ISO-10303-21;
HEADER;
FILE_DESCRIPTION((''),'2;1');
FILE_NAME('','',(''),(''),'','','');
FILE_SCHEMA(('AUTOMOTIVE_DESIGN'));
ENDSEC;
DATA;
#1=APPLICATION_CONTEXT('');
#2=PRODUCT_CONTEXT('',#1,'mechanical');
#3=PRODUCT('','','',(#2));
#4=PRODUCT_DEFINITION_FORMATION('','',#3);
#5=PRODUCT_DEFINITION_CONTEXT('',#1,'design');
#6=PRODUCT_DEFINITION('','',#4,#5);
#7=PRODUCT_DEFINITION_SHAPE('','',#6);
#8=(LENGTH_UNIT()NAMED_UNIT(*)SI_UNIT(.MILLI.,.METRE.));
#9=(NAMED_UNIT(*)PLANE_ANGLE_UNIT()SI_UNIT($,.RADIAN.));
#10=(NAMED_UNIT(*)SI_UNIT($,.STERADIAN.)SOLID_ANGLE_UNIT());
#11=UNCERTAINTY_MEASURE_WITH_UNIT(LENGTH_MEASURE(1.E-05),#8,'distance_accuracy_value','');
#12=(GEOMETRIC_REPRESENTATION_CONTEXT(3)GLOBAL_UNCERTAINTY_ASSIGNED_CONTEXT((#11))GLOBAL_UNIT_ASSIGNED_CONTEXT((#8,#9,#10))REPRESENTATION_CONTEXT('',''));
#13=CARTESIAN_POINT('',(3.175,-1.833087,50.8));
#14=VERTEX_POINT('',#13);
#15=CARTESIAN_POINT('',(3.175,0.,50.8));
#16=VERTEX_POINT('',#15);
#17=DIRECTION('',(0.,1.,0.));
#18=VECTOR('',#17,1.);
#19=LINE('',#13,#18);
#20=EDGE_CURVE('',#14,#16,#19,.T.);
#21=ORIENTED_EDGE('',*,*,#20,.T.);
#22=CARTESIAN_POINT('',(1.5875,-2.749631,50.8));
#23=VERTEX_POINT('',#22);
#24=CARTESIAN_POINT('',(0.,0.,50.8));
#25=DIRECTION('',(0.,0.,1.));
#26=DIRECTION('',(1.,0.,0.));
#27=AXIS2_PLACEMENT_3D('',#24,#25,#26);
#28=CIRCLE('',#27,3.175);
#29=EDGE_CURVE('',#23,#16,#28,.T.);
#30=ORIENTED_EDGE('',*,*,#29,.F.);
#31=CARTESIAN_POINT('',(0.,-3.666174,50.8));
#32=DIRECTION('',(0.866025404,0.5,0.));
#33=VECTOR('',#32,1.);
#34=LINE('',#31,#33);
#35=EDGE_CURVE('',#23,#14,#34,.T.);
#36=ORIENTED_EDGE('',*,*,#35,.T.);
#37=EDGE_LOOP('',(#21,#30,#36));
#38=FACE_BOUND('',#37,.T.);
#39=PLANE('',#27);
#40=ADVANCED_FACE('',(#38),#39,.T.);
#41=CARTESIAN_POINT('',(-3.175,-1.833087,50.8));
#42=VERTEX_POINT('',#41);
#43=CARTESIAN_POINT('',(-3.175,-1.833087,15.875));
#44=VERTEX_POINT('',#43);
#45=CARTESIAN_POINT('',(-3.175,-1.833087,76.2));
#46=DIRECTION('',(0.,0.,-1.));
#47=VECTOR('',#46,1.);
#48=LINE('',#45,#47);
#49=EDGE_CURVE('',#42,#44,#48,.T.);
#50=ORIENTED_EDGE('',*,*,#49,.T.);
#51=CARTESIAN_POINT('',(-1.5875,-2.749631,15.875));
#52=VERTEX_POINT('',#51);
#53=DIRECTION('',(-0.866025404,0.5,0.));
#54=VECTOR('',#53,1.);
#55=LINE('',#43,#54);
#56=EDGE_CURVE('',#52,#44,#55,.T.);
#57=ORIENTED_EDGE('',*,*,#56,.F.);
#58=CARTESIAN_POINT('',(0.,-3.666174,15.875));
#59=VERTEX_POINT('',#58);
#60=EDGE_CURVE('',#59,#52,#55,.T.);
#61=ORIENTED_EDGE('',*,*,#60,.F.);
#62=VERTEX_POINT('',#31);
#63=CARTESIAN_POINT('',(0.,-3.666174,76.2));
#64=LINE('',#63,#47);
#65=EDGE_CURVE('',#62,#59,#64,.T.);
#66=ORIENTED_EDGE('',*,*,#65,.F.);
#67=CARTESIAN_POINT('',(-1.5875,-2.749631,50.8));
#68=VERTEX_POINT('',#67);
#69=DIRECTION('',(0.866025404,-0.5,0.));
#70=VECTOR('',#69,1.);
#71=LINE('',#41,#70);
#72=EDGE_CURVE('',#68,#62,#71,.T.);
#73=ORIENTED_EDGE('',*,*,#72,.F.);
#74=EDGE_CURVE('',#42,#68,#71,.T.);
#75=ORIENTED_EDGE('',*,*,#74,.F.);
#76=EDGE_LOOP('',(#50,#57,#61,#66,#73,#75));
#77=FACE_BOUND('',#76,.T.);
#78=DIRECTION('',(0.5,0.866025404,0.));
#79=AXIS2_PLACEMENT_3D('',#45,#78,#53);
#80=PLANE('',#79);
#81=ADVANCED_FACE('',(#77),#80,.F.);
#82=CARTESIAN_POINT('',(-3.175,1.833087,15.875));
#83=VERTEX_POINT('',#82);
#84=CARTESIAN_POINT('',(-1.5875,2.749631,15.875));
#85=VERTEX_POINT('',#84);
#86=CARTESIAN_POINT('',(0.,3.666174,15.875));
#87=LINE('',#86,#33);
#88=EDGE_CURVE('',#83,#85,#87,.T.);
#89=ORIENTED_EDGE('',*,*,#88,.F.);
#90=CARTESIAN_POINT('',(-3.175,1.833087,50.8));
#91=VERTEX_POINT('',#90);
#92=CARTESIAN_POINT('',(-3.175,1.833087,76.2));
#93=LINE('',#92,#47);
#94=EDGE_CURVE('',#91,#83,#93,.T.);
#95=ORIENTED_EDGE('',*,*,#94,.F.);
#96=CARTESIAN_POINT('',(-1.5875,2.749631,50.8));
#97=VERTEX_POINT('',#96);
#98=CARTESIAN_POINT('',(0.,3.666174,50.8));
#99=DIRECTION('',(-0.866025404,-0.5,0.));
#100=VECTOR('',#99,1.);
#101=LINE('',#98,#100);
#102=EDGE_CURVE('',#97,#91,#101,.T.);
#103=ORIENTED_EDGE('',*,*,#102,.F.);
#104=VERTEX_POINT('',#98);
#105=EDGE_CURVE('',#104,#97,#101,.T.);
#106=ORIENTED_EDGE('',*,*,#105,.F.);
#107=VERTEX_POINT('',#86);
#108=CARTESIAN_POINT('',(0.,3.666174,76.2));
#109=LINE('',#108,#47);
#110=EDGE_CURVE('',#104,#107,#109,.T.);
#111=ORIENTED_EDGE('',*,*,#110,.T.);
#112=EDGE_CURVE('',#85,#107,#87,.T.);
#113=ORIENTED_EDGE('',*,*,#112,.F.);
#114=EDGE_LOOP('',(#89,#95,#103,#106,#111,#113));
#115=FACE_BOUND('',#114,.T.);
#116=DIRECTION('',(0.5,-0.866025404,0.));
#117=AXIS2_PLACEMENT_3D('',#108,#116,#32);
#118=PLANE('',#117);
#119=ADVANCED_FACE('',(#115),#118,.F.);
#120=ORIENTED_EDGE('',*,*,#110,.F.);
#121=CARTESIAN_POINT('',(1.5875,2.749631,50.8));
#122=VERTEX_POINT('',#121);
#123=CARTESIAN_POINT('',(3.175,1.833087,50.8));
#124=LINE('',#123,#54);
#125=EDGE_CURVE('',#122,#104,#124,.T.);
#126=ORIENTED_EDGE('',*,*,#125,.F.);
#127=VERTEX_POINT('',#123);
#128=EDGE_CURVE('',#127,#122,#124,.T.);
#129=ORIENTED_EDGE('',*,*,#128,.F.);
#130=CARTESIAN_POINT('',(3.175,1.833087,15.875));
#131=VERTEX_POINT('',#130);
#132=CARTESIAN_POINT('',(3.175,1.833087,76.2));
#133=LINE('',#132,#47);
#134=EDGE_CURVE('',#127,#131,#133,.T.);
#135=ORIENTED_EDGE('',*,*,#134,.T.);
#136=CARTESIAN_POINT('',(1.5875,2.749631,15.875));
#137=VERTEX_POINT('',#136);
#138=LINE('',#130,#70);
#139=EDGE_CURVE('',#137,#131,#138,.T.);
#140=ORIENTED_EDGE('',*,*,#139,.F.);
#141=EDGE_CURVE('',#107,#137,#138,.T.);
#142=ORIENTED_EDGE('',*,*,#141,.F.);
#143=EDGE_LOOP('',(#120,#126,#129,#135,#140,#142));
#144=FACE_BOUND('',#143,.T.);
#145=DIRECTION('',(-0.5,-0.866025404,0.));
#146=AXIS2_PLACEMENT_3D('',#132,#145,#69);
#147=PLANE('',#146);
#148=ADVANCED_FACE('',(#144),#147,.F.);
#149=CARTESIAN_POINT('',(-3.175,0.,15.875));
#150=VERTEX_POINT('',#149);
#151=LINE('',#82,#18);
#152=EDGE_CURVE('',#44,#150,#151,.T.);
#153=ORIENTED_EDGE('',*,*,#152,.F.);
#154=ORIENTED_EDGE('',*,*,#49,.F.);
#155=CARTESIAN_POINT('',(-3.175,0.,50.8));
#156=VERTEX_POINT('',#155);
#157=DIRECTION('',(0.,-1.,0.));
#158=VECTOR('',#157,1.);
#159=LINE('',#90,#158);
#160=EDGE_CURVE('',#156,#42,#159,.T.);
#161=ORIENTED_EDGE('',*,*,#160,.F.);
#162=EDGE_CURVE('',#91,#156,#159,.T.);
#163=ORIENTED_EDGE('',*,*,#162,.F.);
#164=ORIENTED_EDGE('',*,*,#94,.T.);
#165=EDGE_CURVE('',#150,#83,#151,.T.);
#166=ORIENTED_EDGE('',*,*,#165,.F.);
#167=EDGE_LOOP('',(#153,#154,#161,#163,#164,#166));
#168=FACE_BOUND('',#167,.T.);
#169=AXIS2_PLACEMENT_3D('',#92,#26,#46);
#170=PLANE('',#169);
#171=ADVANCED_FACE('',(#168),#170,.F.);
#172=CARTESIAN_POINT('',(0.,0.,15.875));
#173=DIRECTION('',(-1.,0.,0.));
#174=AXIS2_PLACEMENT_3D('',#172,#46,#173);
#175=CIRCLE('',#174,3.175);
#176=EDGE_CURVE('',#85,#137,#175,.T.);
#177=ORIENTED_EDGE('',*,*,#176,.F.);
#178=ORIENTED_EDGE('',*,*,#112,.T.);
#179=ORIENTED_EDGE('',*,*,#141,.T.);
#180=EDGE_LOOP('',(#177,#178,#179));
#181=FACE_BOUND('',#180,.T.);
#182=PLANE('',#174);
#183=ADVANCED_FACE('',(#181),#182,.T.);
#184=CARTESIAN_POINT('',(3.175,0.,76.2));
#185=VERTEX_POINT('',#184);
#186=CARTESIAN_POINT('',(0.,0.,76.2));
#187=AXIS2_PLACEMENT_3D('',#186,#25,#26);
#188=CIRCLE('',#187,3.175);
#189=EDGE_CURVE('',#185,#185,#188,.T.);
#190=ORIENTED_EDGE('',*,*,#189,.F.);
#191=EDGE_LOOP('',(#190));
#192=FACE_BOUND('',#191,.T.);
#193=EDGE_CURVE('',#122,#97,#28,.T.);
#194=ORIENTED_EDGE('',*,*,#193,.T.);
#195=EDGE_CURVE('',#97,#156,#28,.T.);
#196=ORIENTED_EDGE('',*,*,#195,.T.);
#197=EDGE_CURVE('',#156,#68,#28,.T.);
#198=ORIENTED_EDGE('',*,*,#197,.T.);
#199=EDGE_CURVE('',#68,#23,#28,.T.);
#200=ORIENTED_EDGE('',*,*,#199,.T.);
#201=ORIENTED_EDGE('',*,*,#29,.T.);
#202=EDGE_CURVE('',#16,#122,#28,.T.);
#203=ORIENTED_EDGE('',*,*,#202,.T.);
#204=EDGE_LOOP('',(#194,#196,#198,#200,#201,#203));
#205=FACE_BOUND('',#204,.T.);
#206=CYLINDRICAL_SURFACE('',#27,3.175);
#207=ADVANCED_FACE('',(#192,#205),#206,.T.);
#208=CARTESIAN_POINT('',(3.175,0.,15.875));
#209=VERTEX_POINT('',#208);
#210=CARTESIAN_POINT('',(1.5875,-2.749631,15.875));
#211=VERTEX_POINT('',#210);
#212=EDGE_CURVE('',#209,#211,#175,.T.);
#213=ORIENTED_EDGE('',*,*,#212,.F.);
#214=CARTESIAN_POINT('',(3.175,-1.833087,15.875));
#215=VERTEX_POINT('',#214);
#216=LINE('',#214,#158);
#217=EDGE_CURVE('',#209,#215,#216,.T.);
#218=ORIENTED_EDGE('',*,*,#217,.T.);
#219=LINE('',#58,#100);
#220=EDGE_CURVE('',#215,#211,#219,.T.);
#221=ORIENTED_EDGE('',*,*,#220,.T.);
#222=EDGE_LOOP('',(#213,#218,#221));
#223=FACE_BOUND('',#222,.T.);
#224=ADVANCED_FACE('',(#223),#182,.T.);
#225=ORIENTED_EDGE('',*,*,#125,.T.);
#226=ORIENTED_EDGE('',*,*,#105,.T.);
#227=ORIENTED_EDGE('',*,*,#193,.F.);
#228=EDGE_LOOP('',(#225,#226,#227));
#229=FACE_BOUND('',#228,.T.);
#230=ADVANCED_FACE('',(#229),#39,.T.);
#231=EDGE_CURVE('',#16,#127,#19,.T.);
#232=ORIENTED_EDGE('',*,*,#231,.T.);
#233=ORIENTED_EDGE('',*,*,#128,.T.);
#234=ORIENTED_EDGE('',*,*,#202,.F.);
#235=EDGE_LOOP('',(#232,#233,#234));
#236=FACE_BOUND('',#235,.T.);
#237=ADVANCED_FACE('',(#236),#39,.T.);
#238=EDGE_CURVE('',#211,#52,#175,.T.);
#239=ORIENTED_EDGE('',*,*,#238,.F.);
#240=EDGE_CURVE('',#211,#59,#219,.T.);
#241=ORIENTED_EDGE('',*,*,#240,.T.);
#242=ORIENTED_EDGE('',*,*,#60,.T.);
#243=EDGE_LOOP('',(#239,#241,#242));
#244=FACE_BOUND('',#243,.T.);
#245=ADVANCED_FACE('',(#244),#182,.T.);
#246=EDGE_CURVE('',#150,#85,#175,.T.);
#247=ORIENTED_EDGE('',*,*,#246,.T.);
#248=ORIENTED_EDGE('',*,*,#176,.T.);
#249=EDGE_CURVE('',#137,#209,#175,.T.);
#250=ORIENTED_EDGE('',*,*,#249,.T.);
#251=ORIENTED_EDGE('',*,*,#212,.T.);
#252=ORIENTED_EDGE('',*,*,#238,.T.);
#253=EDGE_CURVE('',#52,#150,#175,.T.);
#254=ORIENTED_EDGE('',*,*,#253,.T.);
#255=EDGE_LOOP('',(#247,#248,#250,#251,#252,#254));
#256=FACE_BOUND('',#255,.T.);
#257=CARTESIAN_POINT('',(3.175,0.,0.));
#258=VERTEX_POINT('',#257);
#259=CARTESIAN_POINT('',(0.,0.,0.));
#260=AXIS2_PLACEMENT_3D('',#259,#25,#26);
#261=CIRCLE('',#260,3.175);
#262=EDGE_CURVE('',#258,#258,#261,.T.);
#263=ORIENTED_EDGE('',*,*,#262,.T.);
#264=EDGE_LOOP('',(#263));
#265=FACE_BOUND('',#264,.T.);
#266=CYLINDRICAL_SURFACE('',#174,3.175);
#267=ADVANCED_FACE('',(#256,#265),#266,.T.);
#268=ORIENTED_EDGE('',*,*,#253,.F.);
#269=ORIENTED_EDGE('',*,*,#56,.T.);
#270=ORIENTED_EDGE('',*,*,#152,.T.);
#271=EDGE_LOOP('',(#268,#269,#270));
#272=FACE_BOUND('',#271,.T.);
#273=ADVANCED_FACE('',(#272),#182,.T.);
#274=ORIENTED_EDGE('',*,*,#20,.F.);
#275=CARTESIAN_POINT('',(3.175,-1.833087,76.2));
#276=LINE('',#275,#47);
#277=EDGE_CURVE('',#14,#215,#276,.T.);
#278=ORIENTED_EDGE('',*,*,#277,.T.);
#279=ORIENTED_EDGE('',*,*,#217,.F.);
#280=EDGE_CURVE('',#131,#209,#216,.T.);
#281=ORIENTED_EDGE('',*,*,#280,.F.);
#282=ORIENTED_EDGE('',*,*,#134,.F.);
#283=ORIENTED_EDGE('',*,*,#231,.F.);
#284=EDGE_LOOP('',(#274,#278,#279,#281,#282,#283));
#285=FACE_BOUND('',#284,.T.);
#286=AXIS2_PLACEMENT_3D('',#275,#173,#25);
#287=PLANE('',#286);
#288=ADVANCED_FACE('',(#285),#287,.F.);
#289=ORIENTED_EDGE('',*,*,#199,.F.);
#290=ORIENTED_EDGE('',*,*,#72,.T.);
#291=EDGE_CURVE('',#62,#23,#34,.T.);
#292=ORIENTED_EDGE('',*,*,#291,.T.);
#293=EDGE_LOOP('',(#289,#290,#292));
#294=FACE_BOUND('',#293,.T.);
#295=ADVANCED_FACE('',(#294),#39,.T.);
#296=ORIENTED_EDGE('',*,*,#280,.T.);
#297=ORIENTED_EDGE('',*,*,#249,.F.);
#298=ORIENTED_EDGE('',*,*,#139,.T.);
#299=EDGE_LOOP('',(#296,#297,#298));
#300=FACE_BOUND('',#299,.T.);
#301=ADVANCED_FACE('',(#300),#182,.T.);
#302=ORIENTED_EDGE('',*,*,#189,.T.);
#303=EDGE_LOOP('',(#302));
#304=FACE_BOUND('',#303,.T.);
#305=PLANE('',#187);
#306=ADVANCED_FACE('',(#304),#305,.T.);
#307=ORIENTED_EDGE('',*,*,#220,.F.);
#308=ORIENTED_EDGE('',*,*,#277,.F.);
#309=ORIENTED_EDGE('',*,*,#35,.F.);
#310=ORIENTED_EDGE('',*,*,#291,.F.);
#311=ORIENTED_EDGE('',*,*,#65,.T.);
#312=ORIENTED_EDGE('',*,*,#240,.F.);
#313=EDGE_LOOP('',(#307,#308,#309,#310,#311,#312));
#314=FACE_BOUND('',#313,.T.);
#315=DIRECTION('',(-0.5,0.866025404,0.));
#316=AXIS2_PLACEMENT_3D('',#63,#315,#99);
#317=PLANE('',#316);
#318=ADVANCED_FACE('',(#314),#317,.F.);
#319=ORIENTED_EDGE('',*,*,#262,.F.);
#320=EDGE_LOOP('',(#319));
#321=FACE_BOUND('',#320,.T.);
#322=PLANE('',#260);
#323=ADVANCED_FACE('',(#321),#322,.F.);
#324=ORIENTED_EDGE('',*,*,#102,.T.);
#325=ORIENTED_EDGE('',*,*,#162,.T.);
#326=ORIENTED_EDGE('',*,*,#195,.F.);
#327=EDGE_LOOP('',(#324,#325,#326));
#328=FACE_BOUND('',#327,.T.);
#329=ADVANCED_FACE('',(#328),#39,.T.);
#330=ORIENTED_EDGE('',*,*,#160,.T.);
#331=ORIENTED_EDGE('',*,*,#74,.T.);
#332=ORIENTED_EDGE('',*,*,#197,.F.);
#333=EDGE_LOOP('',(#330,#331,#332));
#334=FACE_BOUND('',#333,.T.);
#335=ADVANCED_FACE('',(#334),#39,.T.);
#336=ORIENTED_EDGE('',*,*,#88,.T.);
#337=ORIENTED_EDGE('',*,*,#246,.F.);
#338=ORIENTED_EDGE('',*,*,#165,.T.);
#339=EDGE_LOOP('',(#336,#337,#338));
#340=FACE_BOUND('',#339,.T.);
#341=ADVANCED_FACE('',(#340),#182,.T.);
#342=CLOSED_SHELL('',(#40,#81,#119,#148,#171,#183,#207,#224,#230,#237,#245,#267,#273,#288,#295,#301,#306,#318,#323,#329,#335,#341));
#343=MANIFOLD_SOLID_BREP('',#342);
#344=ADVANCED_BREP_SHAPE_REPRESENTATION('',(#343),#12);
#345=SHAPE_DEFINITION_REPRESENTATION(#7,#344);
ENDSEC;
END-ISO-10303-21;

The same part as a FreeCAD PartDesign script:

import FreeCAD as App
import Part
import Sketcher
from FreeCAD import Vector
Q = App.Units.Quantity


def add_polygon(sketch, points):
    """Adds a closed chain of lines whose ends are joined by coincident constraints."""
    first, n = sketch.GeometryCount, len(points)
    for a, b in zip(points, points[1:] + points[:1]):
        sketch.addGeometry(Part.LineSegment(App.Vector(*a, 0), App.Vector(*b, 0)), False)
    for i in range(n):
        sketch.addConstraint(Sketcher.Constraint("Coincident", first + i, 2, first + (i + 1) % n, 1))

doc = App.newDocument("Part")
body = doc.addObject("PartDesign::Body", "Body")

sketch1 = body.newObject("Sketcher::SketchObject", "Sketch")
sketch1.AttachmentSupport = (doc.getObject("XY_Plane"), [""])
sketch1.MapMode = "FlatFace"
add_polygon(sketch1, [(0, 3.7), (-3.2, 1.8), (-3.2, -1.8), (0, -3.7), (3.2, -1.8), (3.2, 1.8)])
sketch1.addConstraint(Sketcher.Constraint("Vertical", 1))
sketch1.addConstraint(Sketcher.Constraint("Vertical", 4))
sketch1.addConstraint(Sketcher.Constraint("Symmetric", 0, 2, 3, 2, -1, 1))
sketch1.addConstraint(Sketcher.Constraint("Symmetric", 2, 2, 5, 2, -1, 1))
sketch1.addConstraint(Sketcher.Constraint("PointOnObject", 2, 2, -2))
sketch1.addConstraint(Sketcher.Constraint("Parallel", 2, 5))
sketch1.addConstraint(Sketcher.Constraint("Horizontal", 1, 2, 3, 2))
sketch1.addConstraint(Sketcher.Constraint("Angle", 0, Q("-150 deg")))
sketch1.addConstraint(Sketcher.Constraint("DistanceX", 1, 2, 3, 2, Q("0.25 in")))
sketch1.addConstraint(Sketcher.Constraint("DistanceY", 1, 2, 1, 1, Q("3.666174 mm")))
pad1 = body.newObject("PartDesign::Pad", "Pad")
pad1.Profile = sketch1
pad1.Length = Q("3 in")

sketch2 = body.newObject("Sketcher::SketchObject", "Sketch001")
sketch2.AttachmentSupport = (doc.getObject("XY_Plane"), [""])
sketch2.MapMode = "FlatFace"
sketch2.AttachmentOffset = App.Placement(Vector(0, 0, 3 * 25.4), App.Rotation())
add_polygon(sketch2, [(-11.9, 12.3), (-11.9, -12.3), (11.9, -12.3), (11.9, 12.3)])
sketch2.addGeometry(Part.Circle(Vector(0, 0, 0), Vector(0, 0, 1), 3.2), False)
sketch2.addConstraint(Sketcher.Constraint("Vertical", 0))
sketch2.addConstraint(Sketcher.Constraint("Horizontal", 1))
sketch2.addConstraint(Sketcher.Constraint("Vertical", 2))
sketch2.addConstraint(Sketcher.Constraint("Horizontal", 3))
sketch2.addConstraint(Sketcher.Constraint("Coincident", 4, 3, -1, 1))
sketch2.addConstraint(Sketcher.Constraint("Symmetric", 0, 2, 2, 2, -1, 1))
sketch2.addConstraint(Sketcher.Constraint("Diameter", 4, Q("0.25 in")))
sketch2.addConstraint(Sketcher.Constraint("DistanceX", 1, 1, 1, 2, Q("23.712 mm")))
sketch2.addConstraint(Sketcher.Constraint("DistanceY", 0, 2, 0, 1, Q("24.694 mm")))
pocket1 = body.newObject("PartDesign::Pocket", "Pocket")
pocket1.Profile = sketch2
pocket1.Length = Q("1 in")

sketch3 = body.newObject("Sketcher::SketchObject", "Sketch002")
sketch3.AttachmentSupport = (doc.getObject("XY_Plane"), [""])
sketch3.MapMode = "FlatFace"
add_polygon(sketch3, [(11.9, 12.3), (11.9, -12.3), (-11.9, -12.3), (-11.9, 12.3)])
sketch3.addGeometry(Part.Circle(Vector(0, 0, 0), Vector(0, 0, 1), 3.2), False)
sketch3.addConstraint(Sketcher.Constraint("Vertical", 0))
sketch3.addConstraint(Sketcher.Constraint("Horizontal", 1))
sketch3.addConstraint(Sketcher.Constraint("Vertical", 2))
sketch3.addConstraint(Sketcher.Constraint("Horizontal", 3))
sketch3.addConstraint(Sketcher.Constraint("Coincident", 4, 3, -1, 1))
sketch3.addConstraint(Sketcher.Constraint("Symmetric", 0, 2, 2, 2, -1, 1))
sketch3.addConstraint(Sketcher.Constraint("Diameter", 4, Q("0.25 in")))
sketch3.addConstraint(Sketcher.Constraint("DistanceX", 1, 2, 1, 1, Q("23.712 mm")))
sketch3.addConstraint(Sketcher.Constraint("DistanceY", 0, 2, 0, 1, Q("24.694 mm")))
pocket2 = body.newObject("PartDesign::Pocket", "Pocket001")
pocket2.Profile = sketch3
pocket2.Length = Q("0.625 in")
pocket2.Reversed = True

doc.recompute()
